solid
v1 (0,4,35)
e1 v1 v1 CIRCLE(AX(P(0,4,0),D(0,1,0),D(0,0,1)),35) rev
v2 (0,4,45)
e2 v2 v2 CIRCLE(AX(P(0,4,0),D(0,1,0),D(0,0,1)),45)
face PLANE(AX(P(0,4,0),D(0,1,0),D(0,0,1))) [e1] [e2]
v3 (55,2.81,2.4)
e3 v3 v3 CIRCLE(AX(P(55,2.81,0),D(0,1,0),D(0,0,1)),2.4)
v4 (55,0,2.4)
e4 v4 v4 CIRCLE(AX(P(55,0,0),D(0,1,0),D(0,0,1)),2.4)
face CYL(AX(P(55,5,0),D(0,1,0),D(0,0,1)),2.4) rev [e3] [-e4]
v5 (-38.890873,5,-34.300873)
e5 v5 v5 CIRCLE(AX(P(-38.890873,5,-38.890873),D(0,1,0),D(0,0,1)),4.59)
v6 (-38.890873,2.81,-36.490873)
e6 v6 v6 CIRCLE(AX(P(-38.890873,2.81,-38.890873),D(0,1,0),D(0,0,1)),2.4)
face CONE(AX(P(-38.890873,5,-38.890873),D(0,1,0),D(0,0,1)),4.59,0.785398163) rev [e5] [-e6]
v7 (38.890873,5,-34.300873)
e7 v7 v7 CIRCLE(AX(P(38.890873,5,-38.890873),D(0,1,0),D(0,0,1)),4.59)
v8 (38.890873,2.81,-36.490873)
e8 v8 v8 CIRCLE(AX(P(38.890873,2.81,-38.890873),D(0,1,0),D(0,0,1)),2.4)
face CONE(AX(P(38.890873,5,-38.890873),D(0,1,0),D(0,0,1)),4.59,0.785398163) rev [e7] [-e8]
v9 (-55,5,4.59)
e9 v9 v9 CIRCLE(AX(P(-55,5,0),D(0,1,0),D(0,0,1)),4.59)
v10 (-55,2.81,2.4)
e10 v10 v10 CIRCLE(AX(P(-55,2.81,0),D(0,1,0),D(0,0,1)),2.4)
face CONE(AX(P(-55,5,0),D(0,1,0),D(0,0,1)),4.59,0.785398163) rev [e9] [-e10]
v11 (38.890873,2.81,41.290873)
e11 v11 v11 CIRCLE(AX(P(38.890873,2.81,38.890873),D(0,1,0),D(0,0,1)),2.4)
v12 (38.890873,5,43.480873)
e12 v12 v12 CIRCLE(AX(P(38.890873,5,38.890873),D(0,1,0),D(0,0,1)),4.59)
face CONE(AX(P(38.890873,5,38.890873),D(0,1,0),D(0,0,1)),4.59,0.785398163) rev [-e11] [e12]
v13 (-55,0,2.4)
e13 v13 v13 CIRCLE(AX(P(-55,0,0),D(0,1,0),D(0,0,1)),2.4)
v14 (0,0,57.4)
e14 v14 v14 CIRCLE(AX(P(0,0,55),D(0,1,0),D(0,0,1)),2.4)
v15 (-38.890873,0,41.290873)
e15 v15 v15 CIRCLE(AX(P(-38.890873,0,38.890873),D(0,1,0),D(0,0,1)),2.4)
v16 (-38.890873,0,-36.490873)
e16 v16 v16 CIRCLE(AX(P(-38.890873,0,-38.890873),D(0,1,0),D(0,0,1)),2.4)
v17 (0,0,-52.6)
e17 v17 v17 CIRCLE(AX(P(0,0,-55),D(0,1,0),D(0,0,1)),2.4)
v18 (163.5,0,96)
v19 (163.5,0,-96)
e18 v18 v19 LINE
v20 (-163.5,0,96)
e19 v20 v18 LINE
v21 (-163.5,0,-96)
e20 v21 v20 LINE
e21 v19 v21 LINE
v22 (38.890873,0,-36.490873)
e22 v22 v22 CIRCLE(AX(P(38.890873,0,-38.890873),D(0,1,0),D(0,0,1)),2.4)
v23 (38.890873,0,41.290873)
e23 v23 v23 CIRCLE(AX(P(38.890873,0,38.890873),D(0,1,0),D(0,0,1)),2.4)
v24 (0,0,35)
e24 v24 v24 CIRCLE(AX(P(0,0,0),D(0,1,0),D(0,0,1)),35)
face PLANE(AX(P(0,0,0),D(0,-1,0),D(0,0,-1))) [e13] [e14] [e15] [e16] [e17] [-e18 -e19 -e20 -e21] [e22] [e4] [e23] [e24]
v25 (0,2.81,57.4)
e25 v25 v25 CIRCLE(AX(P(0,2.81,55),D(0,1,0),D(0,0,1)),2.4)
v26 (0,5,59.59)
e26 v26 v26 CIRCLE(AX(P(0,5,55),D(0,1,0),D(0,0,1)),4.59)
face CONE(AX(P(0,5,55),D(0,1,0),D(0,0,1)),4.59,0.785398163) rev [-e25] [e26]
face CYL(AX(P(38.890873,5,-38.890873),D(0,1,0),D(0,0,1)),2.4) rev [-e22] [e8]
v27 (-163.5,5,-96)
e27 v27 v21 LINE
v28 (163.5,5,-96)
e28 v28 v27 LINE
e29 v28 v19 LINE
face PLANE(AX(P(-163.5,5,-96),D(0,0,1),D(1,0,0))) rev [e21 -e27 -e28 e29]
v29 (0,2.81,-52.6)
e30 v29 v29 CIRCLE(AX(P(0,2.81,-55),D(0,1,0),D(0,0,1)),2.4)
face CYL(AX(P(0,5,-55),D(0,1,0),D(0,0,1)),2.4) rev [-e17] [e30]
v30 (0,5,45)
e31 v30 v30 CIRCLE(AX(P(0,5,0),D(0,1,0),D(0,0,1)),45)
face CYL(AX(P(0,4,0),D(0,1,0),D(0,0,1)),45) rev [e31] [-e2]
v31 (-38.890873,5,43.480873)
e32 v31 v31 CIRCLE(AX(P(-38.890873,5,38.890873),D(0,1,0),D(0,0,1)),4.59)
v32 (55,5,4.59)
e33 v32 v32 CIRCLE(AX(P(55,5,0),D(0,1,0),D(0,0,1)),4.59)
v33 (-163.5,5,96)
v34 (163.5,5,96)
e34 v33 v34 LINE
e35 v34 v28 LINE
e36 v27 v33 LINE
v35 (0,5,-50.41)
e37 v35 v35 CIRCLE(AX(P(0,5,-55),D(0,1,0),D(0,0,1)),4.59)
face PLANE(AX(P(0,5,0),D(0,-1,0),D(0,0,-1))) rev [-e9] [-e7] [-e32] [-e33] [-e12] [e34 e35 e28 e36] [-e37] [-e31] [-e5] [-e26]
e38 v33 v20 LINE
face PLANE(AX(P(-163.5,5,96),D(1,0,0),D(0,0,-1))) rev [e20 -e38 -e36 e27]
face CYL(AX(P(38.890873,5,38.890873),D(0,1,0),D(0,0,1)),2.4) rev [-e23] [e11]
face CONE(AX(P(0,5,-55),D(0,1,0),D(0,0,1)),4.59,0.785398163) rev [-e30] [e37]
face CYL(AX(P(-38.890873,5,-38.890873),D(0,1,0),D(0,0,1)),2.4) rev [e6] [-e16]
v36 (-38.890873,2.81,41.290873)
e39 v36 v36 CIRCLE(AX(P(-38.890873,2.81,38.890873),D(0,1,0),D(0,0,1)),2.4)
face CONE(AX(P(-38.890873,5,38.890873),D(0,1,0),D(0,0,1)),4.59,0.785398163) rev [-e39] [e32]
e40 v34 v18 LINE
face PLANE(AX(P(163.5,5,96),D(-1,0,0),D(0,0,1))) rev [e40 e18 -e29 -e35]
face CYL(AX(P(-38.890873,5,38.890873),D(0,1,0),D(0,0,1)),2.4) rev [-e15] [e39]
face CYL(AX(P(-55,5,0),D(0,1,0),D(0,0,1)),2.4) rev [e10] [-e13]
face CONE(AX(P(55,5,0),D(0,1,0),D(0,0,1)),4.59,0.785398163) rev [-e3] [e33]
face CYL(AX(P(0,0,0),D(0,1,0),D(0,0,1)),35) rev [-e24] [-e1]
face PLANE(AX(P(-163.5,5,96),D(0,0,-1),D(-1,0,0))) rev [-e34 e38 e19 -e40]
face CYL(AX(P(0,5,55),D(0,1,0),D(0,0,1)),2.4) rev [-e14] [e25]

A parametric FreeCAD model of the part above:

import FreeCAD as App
import Part
import Sketcher

V = App.Vector
Q = App.Units.Quantity


def add_polygon(sketch, points):
    """Adds a closed chain of lines whose ends are joined by coincident constraints."""
    first, n = sketch.GeometryCount, len(points)
    for a, b in zip(points, points[1:] + points[:1]):
        sketch.addGeometry(Part.LineSegment(App.Vector(*a, 0), App.Vector(*b, 0)), False)
    for i in range(n):
        sketch.addConstraint(Sketcher.Constraint("Coincident", first + i, 2, first + (i + 1) % n, 1))

doc = App.newDocument("Part")
params = doc.addObject("Spreadsheet::Sheet", "Params")
for row, (alias, value) in enumerate([
    ("sketch1_width", "327 mm"),
    ("sketch1_height", "192 mm"),
    ("pad1_length", "5 mm"),
    ("sketch2_diameter", "70 mm"),
    ("sketch3_diameter", "90 mm"),
    ("pocket2_length", "1 mm"),
    ("sketch4_diameter", "4.8 mm"),
    ("hole_diameter", "4.8 mm"),
    ("hole_csink_diameter", "9.18 mm"),
], start=1):
    params.set(f"A{row}", alias)
    params.set(f"B{row}", "=" + value)
    params.setAlias(f"B{row}", alias)

body = doc.addObject("PartDesign::Body", "Body")

sketch1 = body.newObject("Sketcher::SketchObject", "Sketch")
sketch1.AttachmentSupport = (doc.getObject("XZ_Plane"), [""])
sketch1.MapMode = "FlatFace"
add_polygon(sketch1, [(-164, -96), (-164, 96), (164, 96), (164, -96)])
sketch1.addConstraint([
    Sketcher.Constraint("Vertical", 0),
    Sketcher.Constraint("Horizontal", 1),
    Sketcher.Constraint("Vertical", 2),
    Sketcher.Constraint("Horizontal", 3),
    Sketcher.Constraint("Symmetric", 0, 2, 2, 2, -1, 1),
    Sketcher.Constraint("DistanceX", 1, 1, 1, 2, Q("327 mm")),
    Sketcher.Constraint("DistanceY", 0, 1, 0, 2, Q("192 mm")),
])
sketch1.setExpression("Constraints[9]", "Params.sketch1_width")
sketch1.setExpression("Constraints[10]", "Params.sketch1_height")
pad1 = body.newObject("PartDesign::Pad", "Pad")
pad1.Profile = sketch1
pad1.setExpression("Length", "Params.pad1_length")
pad1.Reversed = True

sketch2 = body.newObject("Sketcher::SketchObject", "Sketch001")
sketch2.AttachmentSupport = (doc.getObject("XZ_Plane"), [""])
sketch2.MapMode = "FlatFace"
sketch2.AttachmentOffset = App.Placement(V(0, 0, -5), App.Rotation())
sketch2.addGeometry(Part.Circle(V(0, 0, 0), V(0, 0, 1), 35), False)
sketch2.addConstraint([
    Sketcher.Constraint("Coincident", 0, 3, -1, 1),
    Sketcher.Constraint("Diameter", 0, Q("70 mm")),
])
sketch2.setExpression("Constraints[1]", "Params.sketch2_diameter")
pocket1 = body.newObject("PartDesign::Pocket", "Pocket")
pocket1.Profile = sketch2
pocket1.Type = "ThroughAll"
pocket1.Reversed = True

sketch3 = body.newObject("Sketcher::SketchObject", "Sketch002")
sketch3.AttachmentSupport = (doc.getObject("XZ_Plane"), [""])
sketch3.MapMode = "FlatFace"
sketch3.AttachmentOffset = App.Placement(V(0, 0, -5), App.Rotation())
sketch3.addGeometry(Part.Circle(V(0, 0, 0), V(0, 0, 1), 45), False)
sketch3.addConstraint([
    Sketcher.Constraint("Coincident", 0, 3, -1, 1),
    Sketcher.Constraint("Diameter", 0, Q("90 mm")),
])
sketch3.setExpression("Constraints[1]", "Params.sketch3_diameter")
pocket2 = body.newObject("PartDesign::Pocket", "Pocket001")
pocket2.Profile = sketch3
pocket2.setExpression("Length", "Params.pocket2_length")
pocket2.Reversed = True

sketch4 = body.newObject("Sketcher::SketchObject", "Sketch003")
sketch4.AttachmentSupport = (doc.getObject("XZ_Plane"), [""])
sketch4.MapMode = "FlatFace"
sketch4.AttachmentOffset = App.Placement(V(0, 0, -5), App.Rotation())
sketch4.addGeometry([
    Part.Circle(V(-38.9, 38.9, 0), V(0, 0, 1), 2.4),
    Part.Circle(V(-55, 0, 0), V(0, 0, 1), 2.4),
    Part.Circle(V(-38.9, -38.9, 0), V(0, 0, 1), 2.4),
    Part.Circle(V(0, -55, 0), V(0, 0, 1), 2.4),
    Part.Circle(V(38.9, -38.9, 0), V(0, 0, 1), 2.4),
    Part.Circle(V(55, 0, 0), V(0, 0, 1), 2.4),
    Part.Circle(V(38.9, 38.9, 0), V(0, 0, 1), 2.4),
    Part.Circle(V(0, 55, 0), V(0, 0, 1), 2.4),
], False)
sketch4.addConstraint([
    Sketcher.Constraint("Equal", 0, 1),
    Sketcher.Constraint("Equal", 1, 2),
    Sketcher.Constraint("Equal", 2, 3),
    Sketcher.Constraint("Equal", 3, 4),
    Sketcher.Constraint("Equal", 4, 5),
    Sketcher.Constraint("Equal", 5, 6),
    Sketcher.Constraint("Equal", 6, 7),
    Sketcher.Constraint("Symmetric", 0, 3, 4, 3, -1, 1),
    Sketcher.Constraint("Symmetric", 1, 3, 5, 3, -1, 1),
    Sketcher.Constraint("Symmetric", 2, 3, 6, 3, -1, 1),
    Sketcher.Constraint("Symmetric", 3, 3, 7, 3, -1, 1),
    Sketcher.Constraint("Symmetric", 2, 3, 4, 3, -2),
    Sketcher.Constraint("PointOnObject", 1, 3, -1),
    Sketcher.Constraint("PointOnObject", 3, 3, -2),
    Sketcher.Constraint("Diameter", 0, Q("4.8 mm")),
    Sketcher.Constraint("DistanceX", 1, 3, -1, 1, Q("55 mm")),
    Sketcher.Constraint("DistanceY", 3, 3, -1, 1, Q("55 mm")),
    Sketcher.Constraint("DistanceX", 0, 3, -1, 1, Q("38.890873 mm")),
    Sketcher.Constraint("DistanceY", -1, 1, 0, 3, Q("38.890873 mm")),
])
sketch4.setExpression("Constraints[14]", "Params.sketch4_diameter")
doc.recompute()
hole = body.newObject("PartDesign::Hole", "Hole")
hole.Profile = sketch4
hole.ThreadType = "None"
hole.setExpression("Diameter", "Params.hole_diameter")
hole.DepthType = "ThroughAll"
hole.HoleCutType = "Countersink"
hole.setExpression("HoleCutDiameter", "Params.hole_csink_diameter")
hole.HoleCutCountersinkAngle = 90
hole.Reversed = True

doc.recompute()
